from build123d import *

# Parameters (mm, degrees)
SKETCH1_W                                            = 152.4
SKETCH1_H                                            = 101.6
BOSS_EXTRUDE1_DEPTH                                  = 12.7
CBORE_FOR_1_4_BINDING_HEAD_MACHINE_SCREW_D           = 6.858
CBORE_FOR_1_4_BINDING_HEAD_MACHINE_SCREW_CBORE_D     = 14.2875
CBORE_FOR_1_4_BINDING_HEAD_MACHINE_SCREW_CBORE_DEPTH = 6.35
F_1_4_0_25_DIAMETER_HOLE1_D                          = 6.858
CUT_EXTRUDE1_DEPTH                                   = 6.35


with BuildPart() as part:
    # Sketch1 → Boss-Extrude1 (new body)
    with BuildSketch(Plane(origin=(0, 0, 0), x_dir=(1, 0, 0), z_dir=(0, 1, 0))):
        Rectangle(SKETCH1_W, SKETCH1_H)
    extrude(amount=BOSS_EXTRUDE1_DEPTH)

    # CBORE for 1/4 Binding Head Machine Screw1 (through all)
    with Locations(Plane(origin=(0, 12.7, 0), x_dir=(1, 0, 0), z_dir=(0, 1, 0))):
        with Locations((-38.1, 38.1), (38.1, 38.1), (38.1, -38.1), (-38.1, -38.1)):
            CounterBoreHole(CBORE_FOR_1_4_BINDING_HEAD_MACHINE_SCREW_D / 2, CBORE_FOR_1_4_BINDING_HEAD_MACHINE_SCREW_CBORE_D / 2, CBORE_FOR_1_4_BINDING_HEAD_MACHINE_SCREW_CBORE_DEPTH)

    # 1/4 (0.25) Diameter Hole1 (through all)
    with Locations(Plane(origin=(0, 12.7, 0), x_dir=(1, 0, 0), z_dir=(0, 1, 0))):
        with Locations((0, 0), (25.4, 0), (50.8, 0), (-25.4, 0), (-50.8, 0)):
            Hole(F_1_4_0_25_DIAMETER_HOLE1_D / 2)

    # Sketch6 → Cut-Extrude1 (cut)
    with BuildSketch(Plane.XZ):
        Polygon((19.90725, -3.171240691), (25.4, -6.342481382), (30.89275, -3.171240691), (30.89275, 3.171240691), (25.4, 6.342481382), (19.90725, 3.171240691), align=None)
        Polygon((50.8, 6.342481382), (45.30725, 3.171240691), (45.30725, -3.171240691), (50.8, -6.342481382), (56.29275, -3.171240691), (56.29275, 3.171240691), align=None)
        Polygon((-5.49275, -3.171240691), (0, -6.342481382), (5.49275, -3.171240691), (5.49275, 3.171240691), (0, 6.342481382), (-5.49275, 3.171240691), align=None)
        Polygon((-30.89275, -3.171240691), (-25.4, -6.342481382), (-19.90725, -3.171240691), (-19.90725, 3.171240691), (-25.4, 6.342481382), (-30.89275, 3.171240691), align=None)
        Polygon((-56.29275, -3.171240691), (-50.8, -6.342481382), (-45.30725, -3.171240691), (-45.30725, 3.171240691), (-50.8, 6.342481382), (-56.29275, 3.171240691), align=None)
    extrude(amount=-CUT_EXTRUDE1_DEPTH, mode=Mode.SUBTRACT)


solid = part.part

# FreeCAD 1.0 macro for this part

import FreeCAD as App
import Part
import Sketcher

V = App.Vector
Q = App.Units.Quantity

doc = App.newDocument("Part")
body = doc.addObject("PartDesign::Body", "Body")

# Sketch on XZ plane
sketch1 = body.newObject("Sketcher::SketchObject", "Sketch")
sketch1.AttachmentSupport = (doc.getObject("XZ_Plane"), [""])
sketch1.MapMode = "FlatFace"
sketch1.addGeometry(Part.LineSegment(V(-76, -51, 0), V(-76, 51, 0)), False)
sketch1.addGeometry(Part.LineSegment(V(-76, 51, 0), V(76, 51, 0)), False)
sketch1.addGeometry(Part.LineSegment(V(76, 51, 0), V(76, -51, 0)), False)
sketch1.addGeometry(Part.LineSegment(V(76, -51, 0), V(-76, -51, 0)), False)
sketch1.addConstraint(Sketcher.Constraint("Coincident", 0, 2, 1, 1))
sketch1.addConstraint(Sketcher.Constraint("Coincident", 1, 2, 2, 1))
sketch1.addConstraint(Sketcher.Constraint("Coincident", 2, 2, 3, 1))
sketch1.addConstraint(Sketcher.Constraint("Coincident", 3, 2, 0, 1))
sketch1.addConstraint(Sketcher.Constraint("Vertical", 0))
sketch1.addConstraint(Sketcher.Constraint("Horizontal", 1))
sketch1.addConstraint(Sketcher.Constraint("Vertical", 2))
sketch1.addConstraint(Sketcher.Constraint("Horizontal", 3))
sketch1.addConstraint(Sketcher.Constraint("Symmetric", 0, 2, 2, 2, -1, 1))
sketch1.addConstraint(Sketcher.Constraint("DistanceX", 1, 1, 1, 2, Q("6 in")))
sketch1.addConstraint(Sketcher.Constraint("DistanceY", 0, 1, 0, 2, Q("4 in")))
pad1 = body.newObject("PartDesign::Pad", "Pad")
pad1.Profile = sketch1
pad1.Length = Q("0.5 in")
pad1.Reversed = True

# Sketch on XZ plane
sketch2 = body.newObject("Sketcher::SketchObject", "Sketch001")
sketch2.AttachmentSupport = (doc.getObject("XZ_Plane"), [""])
sketch2.MapMode = "FlatFace"
sketch2.AttachmentOffset = App.Placement(V(0, 0, -0.5 * 25.4), App.Rotation())
sketch2.addGeometry(Part.Circle(V(-38.1, -38.1, 0), V(0, 0, 1), 3.4), False)
sketch2.addGeometry(Part.Circle(V(38.1, -38.1, 0), V(0, 0, 1), 3.4), False)
sketch2.addGeometry(Part.Circle(V(38.1, 38.1, 0), V(0, 0, 1), 3.4), False)
sketch2.addGeometry(Part.Circle(V(-38.1, 38.1, 0), V(0, 0, 1), 3.4), False)
sketch2.addConstraint(Sketcher.Constraint("Equal", 0, 1))
sketch2.addConstraint(Sketcher.Constraint("Equal", 1, 2))
sketch2.addConstraint(Sketcher.Constraint("Equal", 2, 3))
sketch2.addConstraint(Sketcher.Constraint("Symmetric", 0, 3, 2, 3, -1, 1))
sketch2.addConstraint(Sketcher.Constraint("Symmetric", 1, 3, 3, 3, -1, 1))
sketch2.addConstraint(Sketcher.Constraint("Symmetric", 0, 3, 1, 3, -2))
sketch2.addConstraint(Sketcher.Constraint("Diameter", 0, Q("0.27 in")))
sketch2.addConstraint(Sketcher.Constraint("DistanceX", 0, 3, 1, 3, Q("3 in")))
sketch2.addConstraint(Sketcher.Constraint("DistanceY", 1, 3, 2, 3, Q("3 in")))
doc.recompute()
hole = body.newObject("PartDesign::Hole", "Hole")
hole.Profile = sketch2
hole.ThreadType = "None"
hole.Diameter = Q("0.27 in")
hole.DepthType = "ThroughAll"
hole.HoleCutType = "Counterbore"
hole.HoleCutDiameter = Q("0.5625 in")
hole.HoleCutDepth = Q("0.25 in")
hole.Reversed = True

# Sketch on XZ plane
sketch3 = body.newObject("Sketcher::SketchObject", "Sketch002")
sketch3.AttachmentSupport = (doc.getObject("XZ_Plane"), [""])
sketch3.MapMode = "FlatFace"
sketch3.AttachmentOffset = App.Placement(V(0, 0, -0.5 * 25.4), App.Rotation())
sketch3.addGeometry(Part.Circle(V(0, 0, 0), V(0, 0, 1), 3.4), False)
sketch3.addGeometry(Part.Circle(V(25.4, 0, 0), V(0, 0, 1), 3.4), False)
sketch3.addGeometry(Part.Circle(V(50.8, 0, 0), V(0, 0, 1), 3.4), False)
sketch3.addGeometry(Part.Circle(V(-25.4, 0, 0), V(0, 0, 1), 3.4), False)
sketch3.addGeometry(Part.Circle(V(-50.8, 0, 0), V(0, 0, 1), 3.4), False)
sketch3.addConstraint(Sketcher.Constraint("Coincident", 0, 3, -1, 1))
sketch3.addConstraint(Sketcher.Constraint("Equal", 0, 1))
sketch3.addConstraint(Sketcher.Constraint("Equal", 1, 2))
sketch3.addConstraint(Sketcher.Constraint("Equal", 2, 3))
sketch3.addConstraint(Sketcher.Constraint("Equal", 3, 4))
sketch3.addConstraint(Sketcher.Constraint("Symmetric", 1, 3, 3, 3, -1, 1))
sketch3.addConstraint(Sketcher.Constraint("Symmetric", 2, 3, 4, 3, -1, 1))
sketch3.addConstraint(Sketcher.Constraint("PointOnObject", 1, 3, -1))
sketch3.addConstraint(Sketcher.Constraint("PointOnObject", 2, 3, -1))
sketch3.addConstraint(Sketcher.Constraint("Diameter", 0, Q("0.27 in")))
sketch3.addConstraint(Sketcher.Constraint("DistanceX", -1, 1, 1, 3, Q("1 in")))
sketch3.addConstraint(Sketcher.Constraint("DistanceX", -1, 1, 2, 3, Q("2 in")))
doc.recompute()
hole2 = body.newObject("PartDesign::Hole", "Hole001")
hole2.Profile = sketch3
hole2.ThreadType = "None"
hole2.Diameter = Q("0.27 in")
hole2.DepthType = "ThroughAll"
hole2.Reversed = True

# Sketch on XZ plane
sketch4 = body.newObject("Sketcher::SketchObject", "Sketch003")
sketch4.AttachmentSupport = (doc.getObject("XZ_Plane"), [""])
sketch4.MapMode = "FlatFace"
sketch4.addGeometry(Part.LineSegment(V(20, -3, 0), V(25, -6, 0)), False)
sketch4.addGeometry(Part.LineSegment(V(25, -6, 0), V(31, -3, 0)), False)
sketch4.addGeometry(Part.LineSegment(V(31, -3, 0), V(31, 3, 0)), False)
sketch4.addGeometry(Part.LineSegment(V(31, 3, 0), V(25, 6, 0)), False)
sketch4.addGeometry(Part.LineSegment(V(25, 6, 0), V(20, 3, 0)), False)
sketch4.addGeometry(Part.LineSegment(V(20, 3, 0), V(20, -3, 0)), False)
sketch4.addGeometry(Part.LineSegment(V(51, 6, 0), V(45, 3, 0)), False)
sketch4.addGeometry(Part.LineSegment(V(45, 3, 0), V(45, -3, 0)), False)
sketch4.addGeometry(Part.LineSegment(V(45, -3, 0), V(51, -6, 0)), False)
sketch4.addGeometry(Part.LineSegment(V(51, -6, 0), V(56, -3, 0)), False)
sketch4.addGeometry(Part.LineSegment(V(56, -3, 0), V(56, 3, 0)), False)
sketch4.addGeometry(Part.LineSegment(V(56, 3, 0), V(51, 6, 0)), False)
sketch4.addGeometry(Part.LineSegment(V(-5, -3, 0), V(0, -6, 0)), False)
sketch4.addGeometry(Part.LineSegment(V(0, -6, 0), V(5, -3, 0)), False)
sketch4.addGeometry(Part.LineSegment(V(5, -3, 0), V(5, 3, 0)), False)
sketch4.addGeometry(Part.LineSegment(V(5, 3, 0), V(0, 6, 0)), False)
sketch4.addGeometry(Part.LineSegment(V(0, 6, 0), V(-5, 3, 0)), False)
sketch4.addGeometry(Part.LineSegment(V(-5, 3, 0), V(-5, -3, 0)), False)
sketch4.addGeometry(Part.LineSegment(V(-31, -3, 0), V(-25, -6, 0)), False)
sketch4.addGeometry(Part.LineSegment(V(-25, -6, 0), V(-20, -3, 0)), False)
sketch4.addGeometry(Part.LineSegment(V(-20, -3, 0), V(-20, 3, 0)), False)
sketch4.addGeometry(Part.LineSegment(V(-20, 3, 0), V(-25, 6, 0)), False)
sketch4.addGeometry(Part.LineSegment(V(-25, 6, 0), V(-31, 3, 0)), False)
sketch4.addGeometry(Part.LineSegment(V(-31, 3, 0), V(-31, -3, 0)), False)
sketch4.addGeometry(Part.LineSegment(V(-56, -3, 0), V(-51, -6, 0)), False)
sketch4.addGeometry(Part.LineSegment(V(-51, -6, 0), V(-45, -3, 0)), False)
sketch4.addGeometry(Part.LineSegment(V(-45, -3, 0), V(-45, 3, 0)), False)
sketch4.addGeometry(Part.LineSegment(V(-45, 3, 0), V(-51, 6, 0)), False)
sketch4.addGeometry(Part.LineSegment(V(-51, 6, 0), V(-56, 3, 0)), False)
sketch4.addGeometry(Part.LineSegment(V(-56, 3, 0), V(-56, -3, 0)), False)
sketch4.addConstraint(Sketcher.Constraint("Coincident", 0, 2, 1, 1))
sketch4.addConstraint(Sketcher.Constraint("Coincident", 1, 2, 2, 1))
sketch4.addConstraint(Sketcher.Constraint("Coincident", 2, 2, 3, 1))
sketch4.addConstraint(Sketcher.Constraint("Coincident", 3, 2, 4, 1))
sketch4.addConstraint(Sketcher.Constraint("Coincident", 4, 2, 5, 1))
sketch4.addConstraint(Sketcher.Constraint("Coincident", 5, 2, 0, 1))
sketch4.addConstraint(Sketcher.Constraint("Coincident", 6, 2, 7, 1))
sketch4.addConstraint(Sketcher.Constraint("Coincident", 7, 2, 8, 1))
sketch4.addConstraint(Sketcher.Constraint("Coincident", 8, 2, 9, 1))
sketch4.addConstraint(Sketcher.Constraint("Coincident", 9, 2, 10, 1))
sketch4.addConstraint(Sketcher.Constraint("Coincident", 10, 2, 11, 1))
sketch4.addConstraint(Sketcher.Constraint("Coincident", 11, 2, 6, 1))
sketch4.addConstraint(Sketcher.Constraint("Coincident", 12, 2, 13, 1))
sketch4.addConstraint(Sketcher.Constraint("Coincident", 13, 2, 14, 1))
sketch4.addConstraint(Sketcher.Constraint("Coincident", 14, 2, 15, 1))
sketch4.addConstraint(Sketcher.Constraint("Coincident", 15, 2, 16, 1))
sketch4.addConstraint(Sketcher.Constraint("Coincident", 16, 2, 17, 1))
sketch4.addConstraint(Sketcher.Constraint("Coincident", 17, 2, 12, 1))
sketch4.addConstraint(Sketcher.Constraint("Coincident", 18, 2, 19, 1))
sketch4.addConstraint(Sketcher.Constraint("Coincident", 19, 2, 20, 1))
sketch4.addConstraint(Sketcher.Constraint("Coincident", 20, 2, 21, 1))
sketch4.addConstraint(Sketcher.Constraint("Coincident", 21, 2, 22, 1))
sketch4.addConstraint(Sketcher.Constraint("Coincident", 22, 2, 23, 1))
sketch4.addConstraint(Sketcher.Constraint("Coincident", 23, 2, 18, 1))
sketch4.addConstraint(Sketcher.Constraint("Coincident", 24, 2, 25, 1))
sketch4.addConstraint(Sketcher.Constraint("Coincident", 25, 2, 26, 1))
sketch4.addConstraint(Sketcher.Constraint("Coincident", 26, 2, 27, 1))
sketch4.addConstraint(Sketcher.Constraint("Coincident", 27, 2, 28, 1))
sketch4.addConstraint(Sketcher.Constraint("Coincident", 28, 2, 29, 1))
sketch4.addConstraint(Sketcher.Constraint("Coincident", 29, 2, 24, 1))
sketch4.addConstraint(Sketcher.Constraint("Vertical", 2))
sketch4.addConstraint(Sketcher.Constraint("Vertical", 5))
sketch4.addConstraint(Sketcher.Constraint("Vertical", 7))
sketch4.addConstraint(Sketcher.Constraint("Vertical", 10))
sketch4.addConstraint(Sketcher.Constraint("Vertical", 14))
sketch4.addConstraint(Sketcher.Constraint("Vertical", 17))
sketch4.addConstraint(Sketcher.Constraint("Vertical", 20))
sketch4.addConstraint(Sketcher.Constraint("Vertical", 23))
sketch4.addConstraint(Sketcher.Constraint("Vertical", 26))
sketch4.addConstraint(Sketcher.Constraint("Vertical", 29))
sketch4.addConstraint(Sketcher.Constraint("Symmetric", 12, 2, 15, 2, -1, 1))
sketch4.addConstraint(Sketcher.Constraint("Symmetric", 13, 2, 16, 2, -1, 1))
sketch4.addConstraint(Sketcher.Constraint("Symmetric", 3, 2, 18, 2, -1, 1))
sketch4.addConstraint(Sketcher.Constraint("Symmetric", 4, 2, 19, 2, -1, 1))
sketch4.addConstraint(Sketcher.Constraint("Symmetric", 0, 2, 21, 2, -1, 1))
sketch4.addConstraint(Sketcher.Constraint("Symmetric", 1, 2, 22, 2, -1, 1))
sketch4.addConstraint(Sketcher.Constraint("Symmetric", 11, 2, 24, 2, -1, 1))
sketch4.addConstraint(Sketcher.Constraint("Symmetric", 6, 2, 25, 2, -1, 1))
sketch4.addConstraint(Sketcher.Constraint("Symmetric", 8, 2, 27, 2, -1, 1))
sketch4.addConstraint(Sketcher.Constraint("Symmetric", 9, 2, 28, 2, -1, 1))
sketch4.addConstraint(Sketcher.Constraint("Symmetric", 0, 2, 18, 2, -2))
sketch4.addConstraint(Sketcher.Constraint("Symmetric", 8, 2, 24, 2, -2))
sketch4.addConstraint(Sketcher.Constraint("PointOnObject", 12, 2, -2))
sketch4.addConstraint(Sketcher.Constraint("Parallel", 0, 3))
sketch4.addConstraint(Sketcher.Constraint("Parallel", 1, 4))
sketch4.addConstraint(Sketcher.Constraint("Parallel", 4, 6))
sketch4.addConstraint(Sketcher.Constraint("Parallel", 3, 8))
sketch4.addConstraint(Sketcher.Constraint("Parallel", 6, 9))
sketch4.addConstraint(Sketcher.Constraint("Parallel", 8, 11))
sketch4.addConstraint(Sketcher.Constraint("Parallel", 11, 12))
sketch4.addConstraint(Sketcher.Constraint("Parallel", 9, 13))
sketch4.addConstraint(Sketcher.Constraint("Parallel", 12, 15))
sketch4.addConstraint(Sketcher.Constraint("Parallel", 15, 18))
sketch4.addConstraint(Sketcher.Constraint("Parallel", 18, 21))
sketch4.addConstraint(Sketcher.Constraint("Parallel", 21, 24))
sketch4.addConstraint(Sketcher.Constraint("Parallel", 24, 27))
sketch4.addConstraint(Sketcher.Constraint("Horizontal", 2, 2, 4, 2))
sketch4.addConstraint(Sketcher.Constraint("Horizontal", 1, 2, 5, 2))
sketch4.addConstraint(Sketcher.Constraint("Horizontal", 4, 2, 6, 2))
sketch4.addConstraint(Sketcher.Constraint("Horizontal", 0, 2, 8, 2))
sketch4.addConstraint(Sketcher.Constraint("Horizontal", 7, 2, 9, 2))
sketch4.addConstraint(Sketcher.Constraint("Horizontal", 8, 2, 12, 2))
sketch4.addConstraint(Sketcher.Constraint("Horizontal", 9, 2, 13, 2))
sketch4.addConstraint(Sketcher.Constraint("DistanceX", -1, 1, 0, 2, Q("1 in")))
sketch4.addConstraint(Sketcher.Constraint("DistanceX", -1, 1, 8, 2, Q("2 in")))
sketch4.addConstraint(Sketcher.Constraint("Angle", 0, Q("-30 deg")))
sketch4.addConstraint(Sketcher.Constraint("DistanceX", 4, 2, 2, 2, Q("0.4325 in")))
sketch4.addConstraint(Sketcher.Constraint("DistanceY", 2, 1, 2, 2, Q("6.342481 mm")))
pocket1 = body.newObject("PartDesign::Pocket", "Pocket")
pocket1.Profile = sketch4
pocket1.Length = Q("0.25 in")

doc.recompute()
